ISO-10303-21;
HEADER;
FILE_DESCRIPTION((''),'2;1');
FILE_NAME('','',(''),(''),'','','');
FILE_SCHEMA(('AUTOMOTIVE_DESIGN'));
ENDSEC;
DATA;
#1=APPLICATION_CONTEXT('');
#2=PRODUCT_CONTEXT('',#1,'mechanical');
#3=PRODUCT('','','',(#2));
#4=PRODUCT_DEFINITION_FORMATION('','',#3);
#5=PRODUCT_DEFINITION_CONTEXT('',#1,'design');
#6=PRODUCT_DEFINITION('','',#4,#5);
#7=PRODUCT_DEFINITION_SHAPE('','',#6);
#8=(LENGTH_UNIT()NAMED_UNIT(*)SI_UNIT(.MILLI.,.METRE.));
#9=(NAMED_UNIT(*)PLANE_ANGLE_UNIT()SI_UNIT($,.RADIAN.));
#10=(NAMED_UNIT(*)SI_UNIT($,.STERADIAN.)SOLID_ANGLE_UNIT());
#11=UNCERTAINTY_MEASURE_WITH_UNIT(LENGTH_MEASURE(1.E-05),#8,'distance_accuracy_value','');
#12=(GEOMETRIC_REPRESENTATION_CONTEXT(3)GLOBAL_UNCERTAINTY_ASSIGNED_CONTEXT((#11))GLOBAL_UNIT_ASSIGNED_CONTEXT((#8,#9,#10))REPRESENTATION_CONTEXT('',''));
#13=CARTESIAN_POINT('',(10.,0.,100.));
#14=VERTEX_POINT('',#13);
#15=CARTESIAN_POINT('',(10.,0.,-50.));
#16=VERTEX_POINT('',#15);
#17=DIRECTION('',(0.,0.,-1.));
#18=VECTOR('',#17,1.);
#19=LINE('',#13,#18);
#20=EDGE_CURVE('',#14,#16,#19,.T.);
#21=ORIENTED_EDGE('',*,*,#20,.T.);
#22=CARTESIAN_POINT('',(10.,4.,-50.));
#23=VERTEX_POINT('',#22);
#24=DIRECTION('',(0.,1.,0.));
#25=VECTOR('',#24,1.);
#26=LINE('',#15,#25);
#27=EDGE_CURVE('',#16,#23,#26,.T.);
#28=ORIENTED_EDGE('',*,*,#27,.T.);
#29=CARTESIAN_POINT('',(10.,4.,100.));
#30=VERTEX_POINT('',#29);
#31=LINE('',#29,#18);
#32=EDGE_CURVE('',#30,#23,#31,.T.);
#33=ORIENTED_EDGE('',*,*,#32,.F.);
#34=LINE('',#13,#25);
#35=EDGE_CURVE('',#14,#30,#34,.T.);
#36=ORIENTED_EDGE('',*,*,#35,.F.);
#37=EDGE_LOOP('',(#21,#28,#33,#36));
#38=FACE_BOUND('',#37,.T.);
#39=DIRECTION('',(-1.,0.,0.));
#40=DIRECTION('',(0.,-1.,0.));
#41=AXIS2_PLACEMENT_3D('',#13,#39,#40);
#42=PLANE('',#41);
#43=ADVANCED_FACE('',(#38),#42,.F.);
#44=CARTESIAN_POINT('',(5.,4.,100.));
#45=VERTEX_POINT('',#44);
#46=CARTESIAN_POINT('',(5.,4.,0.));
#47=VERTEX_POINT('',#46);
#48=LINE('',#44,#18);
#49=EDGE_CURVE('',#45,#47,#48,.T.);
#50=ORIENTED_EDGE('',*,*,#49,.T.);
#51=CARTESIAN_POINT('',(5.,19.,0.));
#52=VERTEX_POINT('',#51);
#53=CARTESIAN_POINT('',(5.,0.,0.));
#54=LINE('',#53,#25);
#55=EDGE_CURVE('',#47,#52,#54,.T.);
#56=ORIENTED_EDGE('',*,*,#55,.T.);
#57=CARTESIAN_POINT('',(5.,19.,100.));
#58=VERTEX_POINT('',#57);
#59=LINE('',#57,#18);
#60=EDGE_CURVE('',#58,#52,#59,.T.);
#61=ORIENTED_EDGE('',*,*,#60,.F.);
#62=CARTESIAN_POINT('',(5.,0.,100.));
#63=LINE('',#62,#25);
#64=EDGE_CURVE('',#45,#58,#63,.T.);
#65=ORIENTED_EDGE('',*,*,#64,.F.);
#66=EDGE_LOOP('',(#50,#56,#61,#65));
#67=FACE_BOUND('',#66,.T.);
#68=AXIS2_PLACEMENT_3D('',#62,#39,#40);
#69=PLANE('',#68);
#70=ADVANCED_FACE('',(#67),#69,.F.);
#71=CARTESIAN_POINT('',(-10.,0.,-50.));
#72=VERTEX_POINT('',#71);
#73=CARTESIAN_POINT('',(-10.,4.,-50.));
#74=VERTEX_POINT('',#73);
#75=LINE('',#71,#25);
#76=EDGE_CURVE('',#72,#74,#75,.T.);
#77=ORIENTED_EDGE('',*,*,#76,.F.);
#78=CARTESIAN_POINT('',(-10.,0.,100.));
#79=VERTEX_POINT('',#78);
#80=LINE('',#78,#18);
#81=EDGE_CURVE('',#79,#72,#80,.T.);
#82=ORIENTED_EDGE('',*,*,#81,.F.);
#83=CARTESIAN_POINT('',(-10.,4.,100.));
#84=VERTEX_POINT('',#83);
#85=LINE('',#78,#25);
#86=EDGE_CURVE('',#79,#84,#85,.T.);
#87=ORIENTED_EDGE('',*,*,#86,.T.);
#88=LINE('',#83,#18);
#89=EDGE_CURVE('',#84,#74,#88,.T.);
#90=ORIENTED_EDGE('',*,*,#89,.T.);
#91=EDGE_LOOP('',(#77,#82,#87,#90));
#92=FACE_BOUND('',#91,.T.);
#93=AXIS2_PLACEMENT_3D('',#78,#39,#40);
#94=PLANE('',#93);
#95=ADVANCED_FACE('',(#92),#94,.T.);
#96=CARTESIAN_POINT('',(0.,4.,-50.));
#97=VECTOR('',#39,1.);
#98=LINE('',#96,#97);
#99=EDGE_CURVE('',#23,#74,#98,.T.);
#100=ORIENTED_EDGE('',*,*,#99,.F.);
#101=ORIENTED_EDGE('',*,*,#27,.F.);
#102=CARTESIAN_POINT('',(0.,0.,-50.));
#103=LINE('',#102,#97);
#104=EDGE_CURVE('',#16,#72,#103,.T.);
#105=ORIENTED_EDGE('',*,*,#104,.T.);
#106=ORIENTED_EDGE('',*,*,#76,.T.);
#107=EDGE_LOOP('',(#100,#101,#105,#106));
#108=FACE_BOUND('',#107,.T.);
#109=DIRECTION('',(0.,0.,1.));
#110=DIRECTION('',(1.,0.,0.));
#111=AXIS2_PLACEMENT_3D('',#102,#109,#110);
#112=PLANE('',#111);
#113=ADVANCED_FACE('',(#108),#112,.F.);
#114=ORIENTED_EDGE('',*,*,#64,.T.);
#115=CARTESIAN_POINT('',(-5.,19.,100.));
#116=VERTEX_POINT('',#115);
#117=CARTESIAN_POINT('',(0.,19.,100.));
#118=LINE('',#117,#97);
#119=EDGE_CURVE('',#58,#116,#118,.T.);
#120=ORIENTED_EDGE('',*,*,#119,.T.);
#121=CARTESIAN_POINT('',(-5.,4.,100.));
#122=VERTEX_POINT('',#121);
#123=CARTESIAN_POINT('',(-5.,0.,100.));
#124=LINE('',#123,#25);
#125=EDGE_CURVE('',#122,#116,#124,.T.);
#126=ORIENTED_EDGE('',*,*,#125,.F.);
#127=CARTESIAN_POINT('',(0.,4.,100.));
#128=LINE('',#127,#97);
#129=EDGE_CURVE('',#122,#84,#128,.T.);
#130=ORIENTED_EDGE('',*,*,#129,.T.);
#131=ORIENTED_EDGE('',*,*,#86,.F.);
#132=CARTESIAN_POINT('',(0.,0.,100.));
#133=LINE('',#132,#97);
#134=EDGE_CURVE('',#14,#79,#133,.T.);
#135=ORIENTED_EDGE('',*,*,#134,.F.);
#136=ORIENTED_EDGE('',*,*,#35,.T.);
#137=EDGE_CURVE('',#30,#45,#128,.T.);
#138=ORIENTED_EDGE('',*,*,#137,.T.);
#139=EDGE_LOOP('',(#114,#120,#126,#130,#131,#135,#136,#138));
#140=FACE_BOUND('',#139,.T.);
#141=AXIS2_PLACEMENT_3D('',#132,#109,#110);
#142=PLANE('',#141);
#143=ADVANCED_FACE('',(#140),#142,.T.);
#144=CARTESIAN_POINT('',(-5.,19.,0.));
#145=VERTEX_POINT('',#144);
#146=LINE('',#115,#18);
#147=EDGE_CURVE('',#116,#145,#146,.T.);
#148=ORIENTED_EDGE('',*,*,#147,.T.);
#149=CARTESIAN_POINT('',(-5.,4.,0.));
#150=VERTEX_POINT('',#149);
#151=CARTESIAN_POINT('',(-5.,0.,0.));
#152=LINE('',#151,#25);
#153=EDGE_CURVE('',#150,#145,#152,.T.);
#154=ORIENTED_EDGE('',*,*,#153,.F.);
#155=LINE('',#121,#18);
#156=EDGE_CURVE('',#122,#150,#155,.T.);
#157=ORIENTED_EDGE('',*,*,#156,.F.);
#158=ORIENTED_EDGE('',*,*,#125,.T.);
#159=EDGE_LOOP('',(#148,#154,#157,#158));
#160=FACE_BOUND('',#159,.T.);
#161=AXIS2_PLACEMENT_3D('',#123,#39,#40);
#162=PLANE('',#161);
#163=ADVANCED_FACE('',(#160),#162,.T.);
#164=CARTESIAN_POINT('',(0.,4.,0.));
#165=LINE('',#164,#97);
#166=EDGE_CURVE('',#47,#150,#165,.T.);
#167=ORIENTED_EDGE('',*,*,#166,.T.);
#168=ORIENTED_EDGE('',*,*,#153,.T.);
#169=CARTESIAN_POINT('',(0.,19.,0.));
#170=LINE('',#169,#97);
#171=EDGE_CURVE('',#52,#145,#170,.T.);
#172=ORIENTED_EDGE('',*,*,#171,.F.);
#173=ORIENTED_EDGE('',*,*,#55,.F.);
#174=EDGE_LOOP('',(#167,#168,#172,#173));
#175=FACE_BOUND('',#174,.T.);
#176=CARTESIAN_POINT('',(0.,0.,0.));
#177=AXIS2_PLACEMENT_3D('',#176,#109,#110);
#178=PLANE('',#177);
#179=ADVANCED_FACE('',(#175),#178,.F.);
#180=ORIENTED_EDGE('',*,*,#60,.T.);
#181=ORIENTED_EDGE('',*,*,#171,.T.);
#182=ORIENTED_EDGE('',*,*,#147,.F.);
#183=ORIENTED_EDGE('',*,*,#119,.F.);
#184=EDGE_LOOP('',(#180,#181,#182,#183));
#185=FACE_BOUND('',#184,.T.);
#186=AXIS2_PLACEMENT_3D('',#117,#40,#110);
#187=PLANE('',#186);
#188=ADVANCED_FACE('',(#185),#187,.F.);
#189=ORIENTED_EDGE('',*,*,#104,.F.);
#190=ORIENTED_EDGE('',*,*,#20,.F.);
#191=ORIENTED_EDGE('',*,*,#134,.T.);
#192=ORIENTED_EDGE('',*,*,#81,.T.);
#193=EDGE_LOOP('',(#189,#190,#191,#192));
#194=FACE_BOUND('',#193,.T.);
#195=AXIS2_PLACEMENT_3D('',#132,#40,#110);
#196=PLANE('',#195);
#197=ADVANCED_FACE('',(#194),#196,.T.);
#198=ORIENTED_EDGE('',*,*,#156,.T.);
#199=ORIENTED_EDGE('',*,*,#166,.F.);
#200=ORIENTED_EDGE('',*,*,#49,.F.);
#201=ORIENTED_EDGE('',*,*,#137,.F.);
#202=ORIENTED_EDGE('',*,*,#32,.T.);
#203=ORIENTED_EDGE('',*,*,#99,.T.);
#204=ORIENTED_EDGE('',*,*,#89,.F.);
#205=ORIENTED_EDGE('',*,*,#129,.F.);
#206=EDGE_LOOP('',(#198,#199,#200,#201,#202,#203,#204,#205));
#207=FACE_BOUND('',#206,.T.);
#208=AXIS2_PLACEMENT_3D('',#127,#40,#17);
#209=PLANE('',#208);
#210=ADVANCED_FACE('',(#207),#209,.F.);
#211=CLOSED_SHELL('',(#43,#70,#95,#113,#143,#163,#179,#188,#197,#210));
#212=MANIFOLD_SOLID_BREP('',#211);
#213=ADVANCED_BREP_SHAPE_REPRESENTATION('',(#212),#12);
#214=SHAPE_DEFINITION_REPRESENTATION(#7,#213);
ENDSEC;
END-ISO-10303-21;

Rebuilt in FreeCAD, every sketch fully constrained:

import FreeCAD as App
import Part
import Sketcher
Q = App.Units.Quantity

doc = App.newDocument("Part")
body = doc.addObject("PartDesign::Body", "Body")

# Sketch on XY plane
sketch1 = doc.addObject("Sketcher::SketchObject", "Sketch")
body.addObject(sketch1)
sketch1.AttachmentSupport = (doc.XY_Plane, [""])
sketch1.MapMode = "FlatFace"
sketch1.addGeometry([
    Part.LineSegment(App.Vector(10, 4, 0), App.Vector(5, 4, 0)),  # 0
    Part.LineSegment(App.Vector(5, 4, 0), App.Vector(5, 19, 0)),  # 1
    Part.LineSegment(App.Vector(5, 19, 0), App.Vector(-5, 19, 0)),  # 2
    Part.LineSegment(App.Vector(-5, 19, 0), App.Vector(-5, 4, 0)),  # 3
    Part.LineSegment(App.Vector(-5, 4, 0), App.Vector(-10, 4, 0)),  # 4
    Part.LineSegment(App.Vector(-10, 4, 0), App.Vector(-10, 0, 0)),  # 5
    Part.LineSegment(App.Vector(-10, 0, 0), App.Vector(10, 0, 0)),  # 6
    Part.LineSegment(App.Vector(10, 0, 0), App.Vector(10, 4, 0)),  # 7
], False)
sketch1.addConstraint([
    Sketcher.Constraint("Coincident", 0, 2, 1, 1),
    Sketcher.Constraint("Coincident", 1, 2, 2, 1),
    Sketcher.Constraint("Coincident", 2, 2, 3, 1),
    Sketcher.Constraint("Coincident", 3, 2, 4, 1),
    Sketcher.Constraint("Coincident", 4, 2, 5, 1),
    Sketcher.Constraint("Coincident", 5, 2, 6, 1),
    Sketcher.Constraint("Coincident", 6, 2, 7, 1),
    Sketcher.Constraint("Coincident", 7, 2, 0, 1),
    Sketcher.Constraint("Horizontal", 0),
    Sketcher.Constraint("Vertical", 1),
    Sketcher.Constraint("Horizontal", 2),
    Sketcher.Constraint("Vertical", 3),
    Sketcher.Constraint("Horizontal", 4),
    Sketcher.Constraint("Vertical", 5),
    Sketcher.Constraint("Horizontal", 6),
    Sketcher.Constraint("Vertical", 7),
    Sketcher.Constraint("Symmetric", 5, 2, 6, 2, -1, 1),
    Sketcher.Constraint("Symmetric", 0, 2, 3, 2, -2),
    Sketcher.Constraint("DistanceX", 0, 2, 0, 1, Q("5 mm")),
    Sketcher.Constraint("DistanceX", 2, 2, 2, 1, Q("10 mm")),
    Sketcher.Constraint("DistanceY", 1, 1, 1, 2, Q("15 mm")),
    Sketcher.Constraint("DistanceY", 5, 2, 5, 1, Q("4 mm")),
])
pad1 = doc.addObject("PartDesign::Pad", "Pad")
body.addObject(pad1)
pad1.Profile = sketch1
pad1.Length = 100

# Sketch on XY plane
sketch2 = doc.addObject("Sketcher::SketchObject", "Sketch001")
body.addObject(sketch2)
sketch2.AttachmentSupport = (doc.XY_Plane, [""])
sketch2.MapMode = "FlatFace"
sketch2.addGeometry([
    Part.LineSegment(App.Vector(10, 4, 0), App.Vector(-10, 4, 0)),
    Part.LineSegment(App.Vector(-10, 4, 0), App.Vector(-10, 0, 0)),
    Part.LineSegment(App.Vector(-10, 0, 0), App.Vector(10, 0, 0)),
    Part.LineSegment(App.Vector(10, 0, 0), App.Vector(10, 4, 0)),
], False)
sketch2.addConstraint([
    Sketcher.Constraint("Coincident", 0, 2, 1, 1),
    Sketcher.Constraint("Coincident", 1, 2, 2, 1),
    Sketcher.Constraint("Coincident", 2, 2, 3, 1),
    Sketcher.Constraint("Coincident", 3, 2, 0, 1),
    Sketcher.Constraint("Horizontal", 0),
    Sketcher.Constraint("Vertical", 1),
    Sketcher.Constraint("Horizontal", 2),
    Sketcher.Constraint("Vertical", 3),
    Sketcher.Constraint("Symmetric", 1, 2, 2, 2, -1, 1),
    Sketcher.Constraint("DistanceX", 0, 2, 0, 1, Q("20 mm")),
    Sketcher.Constraint("DistanceY", 1, 2, 1, 1, Q("4 mm")),
])
pad2 = doc.addObject("PartDesign::Pad", "Pad001")
body.addObject(pad2)
pad2.Profile = sketch2
pad2.Length = 50
pad2.Reversed = True

doc.recompute()
